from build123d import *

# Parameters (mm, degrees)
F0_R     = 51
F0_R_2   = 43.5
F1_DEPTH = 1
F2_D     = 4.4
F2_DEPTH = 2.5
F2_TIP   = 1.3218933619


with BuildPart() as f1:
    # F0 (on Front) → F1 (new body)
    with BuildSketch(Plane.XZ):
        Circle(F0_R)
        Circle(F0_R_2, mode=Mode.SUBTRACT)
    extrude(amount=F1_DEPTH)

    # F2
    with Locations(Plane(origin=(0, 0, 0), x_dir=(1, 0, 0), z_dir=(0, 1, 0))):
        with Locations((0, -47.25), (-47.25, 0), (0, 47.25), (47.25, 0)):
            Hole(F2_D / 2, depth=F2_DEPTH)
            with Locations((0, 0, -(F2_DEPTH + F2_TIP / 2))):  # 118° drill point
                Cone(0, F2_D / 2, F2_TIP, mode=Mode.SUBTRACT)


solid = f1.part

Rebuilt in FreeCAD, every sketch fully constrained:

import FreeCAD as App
import Part
import Sketcher

V = App.Vector

doc = App.newDocument("Part")
params = doc.addObject("Spreadsheet::Sheet", "Params")
for row, (alias, value) in enumerate([
    ("sketch1_diameter", "102 mm"),
    ("sketch1_diameter2", "87 mm"),
    ("pad1_length", "1 mm"),
    ("sketch2_diameter", "4.4 mm"),
    ("hole_diameter", "4.4 mm"),
    ("hole_depth", "2.5 mm"),
], start=1):
    params.set(f"A{row}", alias)
    params.set(f"B{row}", "=" + value)
    params.setAlias(f"B{row}", alias)

body = doc.addObject("PartDesign::Body", "Body")

# Sketch on XZ plane
sketch1 = body.newObject("Sketcher::SketchObject", "Sketch")
sketch1.AttachmentSupport = (doc.getObject("XZ_Plane"), [""])
sketch1.MapMode = "FlatFace"
sketch1.addGeometry([
    Part.Circle(V(0, 0, 0), V(0, 0, 1), 51),
    Part.Circle(V(0, 0, 0), V(0, 0, 1), 43.5),
], False)
sketch1.addConstraint([
    Sketcher.Constraint("Coincident", 0, 3, -1, 1),
    Sketcher.Constraint("Coincident", 1, 3, -1, 1),
    Sketcher.Constraint("Diameter", 0, 102.0),
    Sketcher.Constraint("Diameter", 1, 87.0),
])
sketch1.setExpression("Constraints[2]", "Params.sketch1_diameter")
sketch1.setExpression("Constraints[3]", "Params.sketch1_diameter2")
pad1 = body.newObject("PartDesign::Pad", "Pad")
pad1.Profile = sketch1
pad1.setExpression("Length", "Params.pad1_length")

# Sketch on XZ plane
sketch2 = body.newObject("Sketcher::SketchObject", "Sketch001")
sketch2.AttachmentSupport = (doc.getObject("XZ_Plane"), [""])
sketch2.MapMode = "FlatFace"
sketch2.addGeometry([
    Part.Circle(V(0, 47.25, 0), V(0, 0, 1), 2.2),
    Part.Circle(V(-47.25, 0, 0), V(0, 0, 1), 2.2),
    Part.Circle(V(0, -47.25, 0), V(0, 0, 1), 2.2),
    Part.Circle(V(47.25, 0, 0), V(0, 0, 1), 2.2),
], False)
sketch2.addConstraint([
    Sketcher.Constraint("Equal", 0, 1),
    Sketcher.Constraint("Equal", 1, 2),
    Sketcher.Constraint("Equal", 2, 3),
    Sketcher.Constraint("Symmetric", 0, 3, 2, 3, -1, 1),
    Sketcher.Constraint("Symmetric", 1, 3, 3, 3, -1, 1),
    Sketcher.Constraint("PointOnObject", 0, 3, -2),
    Sketcher.Constraint("PointOnObject", 1, 3, -1),
    Sketcher.Constraint("Diameter", 0, 4.4),
    Sketcher.Constraint("DistanceY", 2, 3, 0, 3, 94.5),
    Sketcher.Constraint("DistanceX", 1, 3, 3, 3, 94.5),
])
sketch2.setExpression("Constraints[7]", "Params.sketch2_diameter")
doc.recompute()
hole = body.newObject("PartDesign::Hole", "Hole")
hole.Profile = sketch2
hole.ThreadType = "None"
hole.setExpression("Diameter", "Params.hole_diameter")
hole.DepthType = "Dimension"
hole.setExpression("Depth", "Params.hole_depth")
hole.DrillPoint = "Angled"
hole.DrillPointAngle = 118
hole.Reversed = True

doc.recompute()
